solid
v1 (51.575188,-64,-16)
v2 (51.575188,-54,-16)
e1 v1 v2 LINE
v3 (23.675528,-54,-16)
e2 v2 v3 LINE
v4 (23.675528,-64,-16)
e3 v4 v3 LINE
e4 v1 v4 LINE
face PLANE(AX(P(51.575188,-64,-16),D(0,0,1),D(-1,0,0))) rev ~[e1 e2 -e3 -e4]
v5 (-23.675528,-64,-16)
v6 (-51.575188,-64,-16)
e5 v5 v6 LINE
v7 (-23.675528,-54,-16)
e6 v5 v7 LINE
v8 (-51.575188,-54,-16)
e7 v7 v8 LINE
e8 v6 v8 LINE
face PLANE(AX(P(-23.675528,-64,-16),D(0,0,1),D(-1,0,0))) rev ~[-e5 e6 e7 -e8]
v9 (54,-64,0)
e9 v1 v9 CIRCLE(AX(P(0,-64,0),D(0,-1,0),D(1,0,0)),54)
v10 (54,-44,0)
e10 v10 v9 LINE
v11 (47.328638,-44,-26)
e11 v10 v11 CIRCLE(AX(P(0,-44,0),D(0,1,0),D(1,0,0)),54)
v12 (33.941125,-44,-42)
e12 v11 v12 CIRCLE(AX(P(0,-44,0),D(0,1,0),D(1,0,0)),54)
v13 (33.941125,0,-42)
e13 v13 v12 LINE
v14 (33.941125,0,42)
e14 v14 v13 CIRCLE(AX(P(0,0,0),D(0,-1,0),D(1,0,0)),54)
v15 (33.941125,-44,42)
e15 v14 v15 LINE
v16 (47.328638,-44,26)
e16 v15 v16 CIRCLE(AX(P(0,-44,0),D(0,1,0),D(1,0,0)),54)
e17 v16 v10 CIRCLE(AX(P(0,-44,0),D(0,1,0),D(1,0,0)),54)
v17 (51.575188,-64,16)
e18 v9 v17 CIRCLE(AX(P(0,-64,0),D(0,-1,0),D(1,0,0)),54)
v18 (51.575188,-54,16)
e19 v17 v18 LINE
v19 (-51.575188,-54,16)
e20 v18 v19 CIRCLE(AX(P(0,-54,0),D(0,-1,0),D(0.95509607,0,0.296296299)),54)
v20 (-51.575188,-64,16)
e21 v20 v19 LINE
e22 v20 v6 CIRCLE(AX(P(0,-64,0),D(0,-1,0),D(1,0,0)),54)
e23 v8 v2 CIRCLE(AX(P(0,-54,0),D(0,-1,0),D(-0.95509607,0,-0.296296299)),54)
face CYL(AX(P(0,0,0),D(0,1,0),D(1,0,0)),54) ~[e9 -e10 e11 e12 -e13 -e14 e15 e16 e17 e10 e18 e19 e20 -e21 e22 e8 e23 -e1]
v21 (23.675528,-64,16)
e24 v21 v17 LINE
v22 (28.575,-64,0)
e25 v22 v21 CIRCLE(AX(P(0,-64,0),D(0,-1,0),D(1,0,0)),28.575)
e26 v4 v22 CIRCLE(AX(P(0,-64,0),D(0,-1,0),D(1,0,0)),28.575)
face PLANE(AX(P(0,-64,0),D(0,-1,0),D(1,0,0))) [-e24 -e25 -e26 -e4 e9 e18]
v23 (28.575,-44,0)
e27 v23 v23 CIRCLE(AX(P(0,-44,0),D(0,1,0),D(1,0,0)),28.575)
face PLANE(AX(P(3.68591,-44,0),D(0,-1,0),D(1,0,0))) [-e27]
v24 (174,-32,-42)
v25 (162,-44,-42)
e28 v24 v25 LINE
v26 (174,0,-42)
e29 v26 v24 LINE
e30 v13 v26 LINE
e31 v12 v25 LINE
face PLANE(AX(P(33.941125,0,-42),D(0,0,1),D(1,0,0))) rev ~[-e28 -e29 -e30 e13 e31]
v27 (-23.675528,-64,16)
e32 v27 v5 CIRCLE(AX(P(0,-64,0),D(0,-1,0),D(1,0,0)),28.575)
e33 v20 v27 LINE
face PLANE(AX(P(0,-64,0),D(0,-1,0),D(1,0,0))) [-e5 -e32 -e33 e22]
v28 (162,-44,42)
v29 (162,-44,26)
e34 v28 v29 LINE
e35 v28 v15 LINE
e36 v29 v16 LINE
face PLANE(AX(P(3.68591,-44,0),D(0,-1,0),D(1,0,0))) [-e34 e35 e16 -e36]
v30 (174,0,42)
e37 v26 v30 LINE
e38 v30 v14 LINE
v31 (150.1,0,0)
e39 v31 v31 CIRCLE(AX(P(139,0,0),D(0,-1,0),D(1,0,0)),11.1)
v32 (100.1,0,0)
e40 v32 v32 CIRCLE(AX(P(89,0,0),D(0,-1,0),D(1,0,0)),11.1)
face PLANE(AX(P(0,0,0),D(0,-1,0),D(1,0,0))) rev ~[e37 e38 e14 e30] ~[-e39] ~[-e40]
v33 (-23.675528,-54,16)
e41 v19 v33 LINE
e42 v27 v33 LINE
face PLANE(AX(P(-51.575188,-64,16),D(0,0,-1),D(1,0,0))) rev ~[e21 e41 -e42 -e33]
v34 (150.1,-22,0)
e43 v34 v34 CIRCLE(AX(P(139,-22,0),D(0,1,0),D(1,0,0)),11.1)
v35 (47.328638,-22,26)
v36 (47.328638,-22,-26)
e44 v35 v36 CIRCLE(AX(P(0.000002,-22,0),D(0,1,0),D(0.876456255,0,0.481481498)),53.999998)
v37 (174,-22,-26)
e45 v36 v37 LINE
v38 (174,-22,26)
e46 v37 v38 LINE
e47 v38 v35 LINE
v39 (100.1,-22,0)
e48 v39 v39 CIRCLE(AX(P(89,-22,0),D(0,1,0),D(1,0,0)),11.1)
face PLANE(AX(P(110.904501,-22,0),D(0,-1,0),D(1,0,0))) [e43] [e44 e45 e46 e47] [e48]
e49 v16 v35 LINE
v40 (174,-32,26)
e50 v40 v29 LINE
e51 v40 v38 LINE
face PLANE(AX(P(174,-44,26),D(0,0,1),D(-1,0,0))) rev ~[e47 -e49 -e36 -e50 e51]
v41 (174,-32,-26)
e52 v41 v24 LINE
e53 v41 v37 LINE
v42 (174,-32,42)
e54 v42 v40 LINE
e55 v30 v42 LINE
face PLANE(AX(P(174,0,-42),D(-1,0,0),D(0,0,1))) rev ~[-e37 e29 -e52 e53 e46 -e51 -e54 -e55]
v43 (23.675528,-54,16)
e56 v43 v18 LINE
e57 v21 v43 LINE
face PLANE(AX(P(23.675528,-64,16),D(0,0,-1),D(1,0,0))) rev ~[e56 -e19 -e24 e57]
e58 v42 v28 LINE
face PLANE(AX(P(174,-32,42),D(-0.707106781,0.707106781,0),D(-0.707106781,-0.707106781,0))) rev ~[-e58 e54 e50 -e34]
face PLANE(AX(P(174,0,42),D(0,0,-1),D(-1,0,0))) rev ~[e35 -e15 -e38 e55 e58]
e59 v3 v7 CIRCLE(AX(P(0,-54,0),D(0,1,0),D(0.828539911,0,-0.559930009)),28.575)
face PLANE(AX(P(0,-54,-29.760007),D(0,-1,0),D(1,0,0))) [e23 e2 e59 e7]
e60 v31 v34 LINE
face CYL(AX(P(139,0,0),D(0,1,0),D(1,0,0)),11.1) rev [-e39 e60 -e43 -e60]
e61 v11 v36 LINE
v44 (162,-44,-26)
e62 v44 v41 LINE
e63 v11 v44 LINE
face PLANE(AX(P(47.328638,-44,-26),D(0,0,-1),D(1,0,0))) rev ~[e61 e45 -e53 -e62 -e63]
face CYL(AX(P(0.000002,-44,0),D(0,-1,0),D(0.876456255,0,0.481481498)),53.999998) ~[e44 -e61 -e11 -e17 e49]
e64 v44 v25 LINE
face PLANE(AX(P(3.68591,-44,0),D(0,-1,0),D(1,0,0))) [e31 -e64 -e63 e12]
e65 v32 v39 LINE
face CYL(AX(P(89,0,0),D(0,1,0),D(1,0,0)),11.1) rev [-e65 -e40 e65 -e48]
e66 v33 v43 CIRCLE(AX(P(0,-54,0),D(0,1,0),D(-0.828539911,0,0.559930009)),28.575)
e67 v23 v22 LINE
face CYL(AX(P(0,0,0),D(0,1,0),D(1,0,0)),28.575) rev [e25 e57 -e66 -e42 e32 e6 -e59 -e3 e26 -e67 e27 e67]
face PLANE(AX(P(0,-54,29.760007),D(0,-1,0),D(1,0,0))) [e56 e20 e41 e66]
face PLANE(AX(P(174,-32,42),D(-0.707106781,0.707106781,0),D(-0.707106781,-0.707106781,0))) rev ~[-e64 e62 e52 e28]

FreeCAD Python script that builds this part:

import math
import FreeCAD as App
import Part
import Sketcher

V = App.Vector


def add_polygon(sketch, points):
    """Adds a closed chain of lines whose ends are joined by coincident constraints."""
    first, n = sketch.GeometryCount, len(points)
    for a, b in zip(points, points[1:] + points[:1]):
        sketch.addGeometry(Part.LineSegment(App.Vector(*a, 0), App.Vector(*b, 0)), False)
    for i in range(n):
        sketch.addConstraint(Sketcher.Constraint("Coincident", first + i, 2, first + (i + 1) % n, 1))

doc = App.newDocument("Part")
body = doc.addObject("PartDesign::Body", "Body")

sketch1 = body.newObject("Sketcher::SketchObject", "Sketch")
sketch1.AttachmentSupport = (doc.getObject("XZ_Plane"), [""])
sketch1.MapMode = "FlatFace"
sketch1.addGeometry([
    Part.Circle(V(0, 0, 0), V(0, 0, 1), 54),
    Part.Circle(V(0, 0, 0), V(0, 0, 1), 29),
], False)
sketch1.addConstraint([
    Sketcher.Constraint("Coincident", 0, 3, -1, 1),
    Sketcher.Constraint("Coincident", 1, 3, -1, 1),
    Sketcher.Constraint("Diameter", 0, 108.0),
    Sketcher.Constraint("Diameter", 1, 57.15),
])
pad1 = body.newObject("PartDesign::Pad", "Pad")
pad1.Profile = sketch1
pad1.Length = 64

sketch2 = body.newObject("Sketcher::SketchObject", "Sketch001")
sketch2.AttachmentSupport = (doc.getObject("XZ_Plane"), [""])
sketch2.MapMode = "FlatFace"
sketch2.addGeometry([
    Part.ArcOfCircle(Part.Circle(V(0, 0, 0), V(0, 0, 1), 54), math.radians(51), math.radians(309)),
    Part.LineSegment(V(34, -42, 0), V(174, -42, 0)),
    Part.LineSegment(V(174, -42, 0), V(174, 42, 0)),
    Part.LineSegment(V(174, 42, 0), V(34, 42, 0)),
    Part.Circle(V(89, 0, 0), V(0, 0, 1), 11),
    Part.Circle(V(139, 0, 0), V(0, 0, 1), 11),
], False)
sketch2.addConstraint([
    Sketcher.Constraint("Coincident", 0, 2, 1, 1),
    Sketcher.Constraint("Coincident", 1, 2, 2, 1),
    Sketcher.Constraint("Coincident", 2, 2, 3, 1),
    Sketcher.Constraint("Coincident", 3, 2, 0, 1),
    Sketcher.Constraint("Horizontal", 1),
    Sketcher.Constraint("Vertical", 2),
    Sketcher.Constraint("Horizontal", 3),
    Sketcher.Constraint("Coincident", 0, 3, -1, 1),
    Sketcher.Constraint("Equal", 4, 5),
    Sketcher.Constraint("PointOnObject", 4, 3, -1),
    Sketcher.Constraint("PointOnObject", 5, 3, -1),
    Sketcher.Constraint("Vertical", 0, 2, 3, 2),
    Sketcher.Constraint("Radius", 0, 54.0),
    Sketcher.Constraint("Diameter", 4, 22.2),
    Sketcher.Constraint("DistanceY", 2, 1, 2, 2, 84.0),
    Sketcher.Constraint("DistanceX", -1, 1, 4, 3, 89.0),
    Sketcher.Constraint("DistanceX", -1, 1, 5, 3, 139.0),
    Sketcher.Constraint("DistanceX", -1, 1, 1, 2, 174.0),
])
pad2 = body.newObject("PartDesign::Pad", "Pad001")
pad2.Profile = sketch2
pad2.Length = 44

sketch3 = body.newObject("Sketcher::SketchObject", "Sketch002")
sketch3.AttachmentSupport = (doc.getObject("XZ_Plane"), [""])
sketch3.MapMode = "FlatFace"
sketch3.AttachmentOffset = App.Placement(V(0, 0, 44), App.Rotation())
sketch3.addGeometry([
    Part.LineSegment(V(174, -26, 0), V(174, 26, 0)),
    Part.LineSegment(V(174, 26, 0), V(47, 26, 0)),
    Part.ArcOfCircle(Part.Circle(V(0, 0, 0), V(0, 0, 1), 54), math.radians(-29), math.radians(29)),
    Part.LineSegment(V(47, -26, 0), V(174, -26, 0)),
], False)
sketch3.addConstraint([
    Sketcher.Constraint("Coincident", 0, 2, 1, 1),
    Sketcher.Constraint("Coincident", 1, 2, 2, 2),
    Sketcher.Constraint("Coincident", 2, 1, 3, 1),
    Sketcher.Constraint("Coincident", 3, 2, 0, 1),
    Sketcher.Constraint("Vertical", 0),
    Sketcher.Constraint("Horizontal", 1),
    Sketcher.Constraint("Horizontal", 3),
    Sketcher.Constraint("Coincident", 2, 3, -1, 1),
    Sketcher.Constraint("Vertical", 1, 2, 2, 1),
    Sketcher.Constraint("Radius", 2, 53.999998),
    Sketcher.Constraint("DistanceY", 0, 1, 0, 2, 52.0),
    Sketcher.Constraint("DistanceX", -1, 1, 0, 2, 174.0),
])
pocket1 = body.newObject("PartDesign::Pocket", "Pocket")
pocket1.Profile = sketch3
pocket1.Length = 22

sketch4 = body.newObject("Sketcher::SketchObject", "Sketch003")
sketch4.AttachmentSupport = (doc.getObject("XY_Plane"), [""])
sketch4.MapMode = "FlatFace"
sketch4.AttachmentOffset = App.Placement(V(0, 0, 42), App.Rotation())
add_polygon(sketch4, [(174, -32), (162, -44), (174, -44)])
sketch4.addConstraint([
    Sketcher.Constraint("Horizontal", 1),
    Sketcher.Constraint("Vertical", 2),
    Sketcher.Constraint("Equal", 1, 2),
    Sketcher.Constraint("DistanceX", 1, 1, 1, 2, 12.0),
    Sketcher.Constraint("DistanceX", -1, 1, 0, 2, 162.0),
    Sketcher.Constraint("DistanceY", 0, 2, -1, 1, 44.0),
])
pocket2 = body.newObject("PartDesign::Pocket", "Pocket001")
pocket2.Profile = sketch4
pocket2.Length = 114.55193

sketch5 = body.newObject("Sketcher::SketchObject", "Sketch004")
sketch5.AttachmentSupport = (doc.getObject("XZ_Plane"), [""])
sketch5.MapMode = "FlatFace"
sketch5.AttachmentOffset = App.Placement(V(0, 0, 64), App.Rotation())
sketch5.addGeometry([
    Part.ArcOfCircle(Part.Circle(V(0, 0, 0), V(0, 0, 1), 54), math.radians(17), math.radians(163)),
    Part.LineSegment(V(-52, 16, 0), V(-24, 16, 0)),
    Part.ArcOfCircle(Part.Circle(V(0, 0, 0), V(0, 0, 1), 29), math.radians(34), math.radians(146)),
    Part.LineSegment(V(24, 16, 0), V(52, 16, 0)),
    Part.LineSegment(V(-24, -16, 0), V(-52, -16, 0)),
    Part.ArcOfCircle(Part.Circle(V(0, 0, 0), V(0, 0, 1), 54), math.radians(-163), math.radians(-17)),
    Part.LineSegment(V(52, -16, 0), V(24, -16, 0)),
    Part.ArcOfCircle(Part.Circle(V(0, 0, 0), V(0, 0, 1), 29), math.radians(-146), math.radians(-34)),
], False)
sketch5.addConstraint([
    Sketcher.Constraint("Coincident", 0, 2, 1, 1),
    Sketcher.Constraint("Coincident", 1, 2, 2, 2),
    Sketcher.Constraint("Coincident", 2, 1, 3, 1),
    Sketcher.Constraint("Coincident", 3, 2, 0, 1),
    Sketcher.Constraint("Coincident", 4, 2, 5, 1),
    Sketcher.Constraint("Coincident", 5, 2, 6, 1),
    Sketcher.Constraint("Coincident", 6, 2, 7, 2),
    Sketcher.Constraint("Coincident", 7, 1, 4, 1),
    Sketcher.Constraint("Horizontal", 1),
    Sketcher.Constraint("Horizontal", 3),
    Sketcher.Constraint("Horizontal", 4),
    Sketcher.Constraint("Horizontal", 6),
    Sketcher.Constraint("Coincident", 0, 3, -1, 1),
    Sketcher.Constraint("Coincident", 2, 3, -1, 1),
    Sketcher.Constraint("Coincident", 5, 3, -1, 1),
    Sketcher.Constraint("Coincident", 7, 3, -1, 1),
    Sketcher.Constraint("Equal", 0, 5),
    Sketcher.Constraint("Equal", 2, 7),
    Sketcher.Constraint("Horizontal", 1, 2, 2, 1),
    Sketcher.Constraint("Horizontal", 4, 2, 5, 2),
    Sketcher.Constraint("Vertical", 0, 2, 4, 2),
    Sketcher.Constraint("Radius", 0, 54.0),
    Sketcher.Constraint("DistanceY", -1, 1, 0, 2, 16.0),
    Sketcher.Constraint("Radius", 2, 28.575),
])
pocket3 = body.newObject("PartDesign::Pocket", "Pocket002")
pocket3.Profile = sketch5
pocket3.Length = 10

doc.recompute()
